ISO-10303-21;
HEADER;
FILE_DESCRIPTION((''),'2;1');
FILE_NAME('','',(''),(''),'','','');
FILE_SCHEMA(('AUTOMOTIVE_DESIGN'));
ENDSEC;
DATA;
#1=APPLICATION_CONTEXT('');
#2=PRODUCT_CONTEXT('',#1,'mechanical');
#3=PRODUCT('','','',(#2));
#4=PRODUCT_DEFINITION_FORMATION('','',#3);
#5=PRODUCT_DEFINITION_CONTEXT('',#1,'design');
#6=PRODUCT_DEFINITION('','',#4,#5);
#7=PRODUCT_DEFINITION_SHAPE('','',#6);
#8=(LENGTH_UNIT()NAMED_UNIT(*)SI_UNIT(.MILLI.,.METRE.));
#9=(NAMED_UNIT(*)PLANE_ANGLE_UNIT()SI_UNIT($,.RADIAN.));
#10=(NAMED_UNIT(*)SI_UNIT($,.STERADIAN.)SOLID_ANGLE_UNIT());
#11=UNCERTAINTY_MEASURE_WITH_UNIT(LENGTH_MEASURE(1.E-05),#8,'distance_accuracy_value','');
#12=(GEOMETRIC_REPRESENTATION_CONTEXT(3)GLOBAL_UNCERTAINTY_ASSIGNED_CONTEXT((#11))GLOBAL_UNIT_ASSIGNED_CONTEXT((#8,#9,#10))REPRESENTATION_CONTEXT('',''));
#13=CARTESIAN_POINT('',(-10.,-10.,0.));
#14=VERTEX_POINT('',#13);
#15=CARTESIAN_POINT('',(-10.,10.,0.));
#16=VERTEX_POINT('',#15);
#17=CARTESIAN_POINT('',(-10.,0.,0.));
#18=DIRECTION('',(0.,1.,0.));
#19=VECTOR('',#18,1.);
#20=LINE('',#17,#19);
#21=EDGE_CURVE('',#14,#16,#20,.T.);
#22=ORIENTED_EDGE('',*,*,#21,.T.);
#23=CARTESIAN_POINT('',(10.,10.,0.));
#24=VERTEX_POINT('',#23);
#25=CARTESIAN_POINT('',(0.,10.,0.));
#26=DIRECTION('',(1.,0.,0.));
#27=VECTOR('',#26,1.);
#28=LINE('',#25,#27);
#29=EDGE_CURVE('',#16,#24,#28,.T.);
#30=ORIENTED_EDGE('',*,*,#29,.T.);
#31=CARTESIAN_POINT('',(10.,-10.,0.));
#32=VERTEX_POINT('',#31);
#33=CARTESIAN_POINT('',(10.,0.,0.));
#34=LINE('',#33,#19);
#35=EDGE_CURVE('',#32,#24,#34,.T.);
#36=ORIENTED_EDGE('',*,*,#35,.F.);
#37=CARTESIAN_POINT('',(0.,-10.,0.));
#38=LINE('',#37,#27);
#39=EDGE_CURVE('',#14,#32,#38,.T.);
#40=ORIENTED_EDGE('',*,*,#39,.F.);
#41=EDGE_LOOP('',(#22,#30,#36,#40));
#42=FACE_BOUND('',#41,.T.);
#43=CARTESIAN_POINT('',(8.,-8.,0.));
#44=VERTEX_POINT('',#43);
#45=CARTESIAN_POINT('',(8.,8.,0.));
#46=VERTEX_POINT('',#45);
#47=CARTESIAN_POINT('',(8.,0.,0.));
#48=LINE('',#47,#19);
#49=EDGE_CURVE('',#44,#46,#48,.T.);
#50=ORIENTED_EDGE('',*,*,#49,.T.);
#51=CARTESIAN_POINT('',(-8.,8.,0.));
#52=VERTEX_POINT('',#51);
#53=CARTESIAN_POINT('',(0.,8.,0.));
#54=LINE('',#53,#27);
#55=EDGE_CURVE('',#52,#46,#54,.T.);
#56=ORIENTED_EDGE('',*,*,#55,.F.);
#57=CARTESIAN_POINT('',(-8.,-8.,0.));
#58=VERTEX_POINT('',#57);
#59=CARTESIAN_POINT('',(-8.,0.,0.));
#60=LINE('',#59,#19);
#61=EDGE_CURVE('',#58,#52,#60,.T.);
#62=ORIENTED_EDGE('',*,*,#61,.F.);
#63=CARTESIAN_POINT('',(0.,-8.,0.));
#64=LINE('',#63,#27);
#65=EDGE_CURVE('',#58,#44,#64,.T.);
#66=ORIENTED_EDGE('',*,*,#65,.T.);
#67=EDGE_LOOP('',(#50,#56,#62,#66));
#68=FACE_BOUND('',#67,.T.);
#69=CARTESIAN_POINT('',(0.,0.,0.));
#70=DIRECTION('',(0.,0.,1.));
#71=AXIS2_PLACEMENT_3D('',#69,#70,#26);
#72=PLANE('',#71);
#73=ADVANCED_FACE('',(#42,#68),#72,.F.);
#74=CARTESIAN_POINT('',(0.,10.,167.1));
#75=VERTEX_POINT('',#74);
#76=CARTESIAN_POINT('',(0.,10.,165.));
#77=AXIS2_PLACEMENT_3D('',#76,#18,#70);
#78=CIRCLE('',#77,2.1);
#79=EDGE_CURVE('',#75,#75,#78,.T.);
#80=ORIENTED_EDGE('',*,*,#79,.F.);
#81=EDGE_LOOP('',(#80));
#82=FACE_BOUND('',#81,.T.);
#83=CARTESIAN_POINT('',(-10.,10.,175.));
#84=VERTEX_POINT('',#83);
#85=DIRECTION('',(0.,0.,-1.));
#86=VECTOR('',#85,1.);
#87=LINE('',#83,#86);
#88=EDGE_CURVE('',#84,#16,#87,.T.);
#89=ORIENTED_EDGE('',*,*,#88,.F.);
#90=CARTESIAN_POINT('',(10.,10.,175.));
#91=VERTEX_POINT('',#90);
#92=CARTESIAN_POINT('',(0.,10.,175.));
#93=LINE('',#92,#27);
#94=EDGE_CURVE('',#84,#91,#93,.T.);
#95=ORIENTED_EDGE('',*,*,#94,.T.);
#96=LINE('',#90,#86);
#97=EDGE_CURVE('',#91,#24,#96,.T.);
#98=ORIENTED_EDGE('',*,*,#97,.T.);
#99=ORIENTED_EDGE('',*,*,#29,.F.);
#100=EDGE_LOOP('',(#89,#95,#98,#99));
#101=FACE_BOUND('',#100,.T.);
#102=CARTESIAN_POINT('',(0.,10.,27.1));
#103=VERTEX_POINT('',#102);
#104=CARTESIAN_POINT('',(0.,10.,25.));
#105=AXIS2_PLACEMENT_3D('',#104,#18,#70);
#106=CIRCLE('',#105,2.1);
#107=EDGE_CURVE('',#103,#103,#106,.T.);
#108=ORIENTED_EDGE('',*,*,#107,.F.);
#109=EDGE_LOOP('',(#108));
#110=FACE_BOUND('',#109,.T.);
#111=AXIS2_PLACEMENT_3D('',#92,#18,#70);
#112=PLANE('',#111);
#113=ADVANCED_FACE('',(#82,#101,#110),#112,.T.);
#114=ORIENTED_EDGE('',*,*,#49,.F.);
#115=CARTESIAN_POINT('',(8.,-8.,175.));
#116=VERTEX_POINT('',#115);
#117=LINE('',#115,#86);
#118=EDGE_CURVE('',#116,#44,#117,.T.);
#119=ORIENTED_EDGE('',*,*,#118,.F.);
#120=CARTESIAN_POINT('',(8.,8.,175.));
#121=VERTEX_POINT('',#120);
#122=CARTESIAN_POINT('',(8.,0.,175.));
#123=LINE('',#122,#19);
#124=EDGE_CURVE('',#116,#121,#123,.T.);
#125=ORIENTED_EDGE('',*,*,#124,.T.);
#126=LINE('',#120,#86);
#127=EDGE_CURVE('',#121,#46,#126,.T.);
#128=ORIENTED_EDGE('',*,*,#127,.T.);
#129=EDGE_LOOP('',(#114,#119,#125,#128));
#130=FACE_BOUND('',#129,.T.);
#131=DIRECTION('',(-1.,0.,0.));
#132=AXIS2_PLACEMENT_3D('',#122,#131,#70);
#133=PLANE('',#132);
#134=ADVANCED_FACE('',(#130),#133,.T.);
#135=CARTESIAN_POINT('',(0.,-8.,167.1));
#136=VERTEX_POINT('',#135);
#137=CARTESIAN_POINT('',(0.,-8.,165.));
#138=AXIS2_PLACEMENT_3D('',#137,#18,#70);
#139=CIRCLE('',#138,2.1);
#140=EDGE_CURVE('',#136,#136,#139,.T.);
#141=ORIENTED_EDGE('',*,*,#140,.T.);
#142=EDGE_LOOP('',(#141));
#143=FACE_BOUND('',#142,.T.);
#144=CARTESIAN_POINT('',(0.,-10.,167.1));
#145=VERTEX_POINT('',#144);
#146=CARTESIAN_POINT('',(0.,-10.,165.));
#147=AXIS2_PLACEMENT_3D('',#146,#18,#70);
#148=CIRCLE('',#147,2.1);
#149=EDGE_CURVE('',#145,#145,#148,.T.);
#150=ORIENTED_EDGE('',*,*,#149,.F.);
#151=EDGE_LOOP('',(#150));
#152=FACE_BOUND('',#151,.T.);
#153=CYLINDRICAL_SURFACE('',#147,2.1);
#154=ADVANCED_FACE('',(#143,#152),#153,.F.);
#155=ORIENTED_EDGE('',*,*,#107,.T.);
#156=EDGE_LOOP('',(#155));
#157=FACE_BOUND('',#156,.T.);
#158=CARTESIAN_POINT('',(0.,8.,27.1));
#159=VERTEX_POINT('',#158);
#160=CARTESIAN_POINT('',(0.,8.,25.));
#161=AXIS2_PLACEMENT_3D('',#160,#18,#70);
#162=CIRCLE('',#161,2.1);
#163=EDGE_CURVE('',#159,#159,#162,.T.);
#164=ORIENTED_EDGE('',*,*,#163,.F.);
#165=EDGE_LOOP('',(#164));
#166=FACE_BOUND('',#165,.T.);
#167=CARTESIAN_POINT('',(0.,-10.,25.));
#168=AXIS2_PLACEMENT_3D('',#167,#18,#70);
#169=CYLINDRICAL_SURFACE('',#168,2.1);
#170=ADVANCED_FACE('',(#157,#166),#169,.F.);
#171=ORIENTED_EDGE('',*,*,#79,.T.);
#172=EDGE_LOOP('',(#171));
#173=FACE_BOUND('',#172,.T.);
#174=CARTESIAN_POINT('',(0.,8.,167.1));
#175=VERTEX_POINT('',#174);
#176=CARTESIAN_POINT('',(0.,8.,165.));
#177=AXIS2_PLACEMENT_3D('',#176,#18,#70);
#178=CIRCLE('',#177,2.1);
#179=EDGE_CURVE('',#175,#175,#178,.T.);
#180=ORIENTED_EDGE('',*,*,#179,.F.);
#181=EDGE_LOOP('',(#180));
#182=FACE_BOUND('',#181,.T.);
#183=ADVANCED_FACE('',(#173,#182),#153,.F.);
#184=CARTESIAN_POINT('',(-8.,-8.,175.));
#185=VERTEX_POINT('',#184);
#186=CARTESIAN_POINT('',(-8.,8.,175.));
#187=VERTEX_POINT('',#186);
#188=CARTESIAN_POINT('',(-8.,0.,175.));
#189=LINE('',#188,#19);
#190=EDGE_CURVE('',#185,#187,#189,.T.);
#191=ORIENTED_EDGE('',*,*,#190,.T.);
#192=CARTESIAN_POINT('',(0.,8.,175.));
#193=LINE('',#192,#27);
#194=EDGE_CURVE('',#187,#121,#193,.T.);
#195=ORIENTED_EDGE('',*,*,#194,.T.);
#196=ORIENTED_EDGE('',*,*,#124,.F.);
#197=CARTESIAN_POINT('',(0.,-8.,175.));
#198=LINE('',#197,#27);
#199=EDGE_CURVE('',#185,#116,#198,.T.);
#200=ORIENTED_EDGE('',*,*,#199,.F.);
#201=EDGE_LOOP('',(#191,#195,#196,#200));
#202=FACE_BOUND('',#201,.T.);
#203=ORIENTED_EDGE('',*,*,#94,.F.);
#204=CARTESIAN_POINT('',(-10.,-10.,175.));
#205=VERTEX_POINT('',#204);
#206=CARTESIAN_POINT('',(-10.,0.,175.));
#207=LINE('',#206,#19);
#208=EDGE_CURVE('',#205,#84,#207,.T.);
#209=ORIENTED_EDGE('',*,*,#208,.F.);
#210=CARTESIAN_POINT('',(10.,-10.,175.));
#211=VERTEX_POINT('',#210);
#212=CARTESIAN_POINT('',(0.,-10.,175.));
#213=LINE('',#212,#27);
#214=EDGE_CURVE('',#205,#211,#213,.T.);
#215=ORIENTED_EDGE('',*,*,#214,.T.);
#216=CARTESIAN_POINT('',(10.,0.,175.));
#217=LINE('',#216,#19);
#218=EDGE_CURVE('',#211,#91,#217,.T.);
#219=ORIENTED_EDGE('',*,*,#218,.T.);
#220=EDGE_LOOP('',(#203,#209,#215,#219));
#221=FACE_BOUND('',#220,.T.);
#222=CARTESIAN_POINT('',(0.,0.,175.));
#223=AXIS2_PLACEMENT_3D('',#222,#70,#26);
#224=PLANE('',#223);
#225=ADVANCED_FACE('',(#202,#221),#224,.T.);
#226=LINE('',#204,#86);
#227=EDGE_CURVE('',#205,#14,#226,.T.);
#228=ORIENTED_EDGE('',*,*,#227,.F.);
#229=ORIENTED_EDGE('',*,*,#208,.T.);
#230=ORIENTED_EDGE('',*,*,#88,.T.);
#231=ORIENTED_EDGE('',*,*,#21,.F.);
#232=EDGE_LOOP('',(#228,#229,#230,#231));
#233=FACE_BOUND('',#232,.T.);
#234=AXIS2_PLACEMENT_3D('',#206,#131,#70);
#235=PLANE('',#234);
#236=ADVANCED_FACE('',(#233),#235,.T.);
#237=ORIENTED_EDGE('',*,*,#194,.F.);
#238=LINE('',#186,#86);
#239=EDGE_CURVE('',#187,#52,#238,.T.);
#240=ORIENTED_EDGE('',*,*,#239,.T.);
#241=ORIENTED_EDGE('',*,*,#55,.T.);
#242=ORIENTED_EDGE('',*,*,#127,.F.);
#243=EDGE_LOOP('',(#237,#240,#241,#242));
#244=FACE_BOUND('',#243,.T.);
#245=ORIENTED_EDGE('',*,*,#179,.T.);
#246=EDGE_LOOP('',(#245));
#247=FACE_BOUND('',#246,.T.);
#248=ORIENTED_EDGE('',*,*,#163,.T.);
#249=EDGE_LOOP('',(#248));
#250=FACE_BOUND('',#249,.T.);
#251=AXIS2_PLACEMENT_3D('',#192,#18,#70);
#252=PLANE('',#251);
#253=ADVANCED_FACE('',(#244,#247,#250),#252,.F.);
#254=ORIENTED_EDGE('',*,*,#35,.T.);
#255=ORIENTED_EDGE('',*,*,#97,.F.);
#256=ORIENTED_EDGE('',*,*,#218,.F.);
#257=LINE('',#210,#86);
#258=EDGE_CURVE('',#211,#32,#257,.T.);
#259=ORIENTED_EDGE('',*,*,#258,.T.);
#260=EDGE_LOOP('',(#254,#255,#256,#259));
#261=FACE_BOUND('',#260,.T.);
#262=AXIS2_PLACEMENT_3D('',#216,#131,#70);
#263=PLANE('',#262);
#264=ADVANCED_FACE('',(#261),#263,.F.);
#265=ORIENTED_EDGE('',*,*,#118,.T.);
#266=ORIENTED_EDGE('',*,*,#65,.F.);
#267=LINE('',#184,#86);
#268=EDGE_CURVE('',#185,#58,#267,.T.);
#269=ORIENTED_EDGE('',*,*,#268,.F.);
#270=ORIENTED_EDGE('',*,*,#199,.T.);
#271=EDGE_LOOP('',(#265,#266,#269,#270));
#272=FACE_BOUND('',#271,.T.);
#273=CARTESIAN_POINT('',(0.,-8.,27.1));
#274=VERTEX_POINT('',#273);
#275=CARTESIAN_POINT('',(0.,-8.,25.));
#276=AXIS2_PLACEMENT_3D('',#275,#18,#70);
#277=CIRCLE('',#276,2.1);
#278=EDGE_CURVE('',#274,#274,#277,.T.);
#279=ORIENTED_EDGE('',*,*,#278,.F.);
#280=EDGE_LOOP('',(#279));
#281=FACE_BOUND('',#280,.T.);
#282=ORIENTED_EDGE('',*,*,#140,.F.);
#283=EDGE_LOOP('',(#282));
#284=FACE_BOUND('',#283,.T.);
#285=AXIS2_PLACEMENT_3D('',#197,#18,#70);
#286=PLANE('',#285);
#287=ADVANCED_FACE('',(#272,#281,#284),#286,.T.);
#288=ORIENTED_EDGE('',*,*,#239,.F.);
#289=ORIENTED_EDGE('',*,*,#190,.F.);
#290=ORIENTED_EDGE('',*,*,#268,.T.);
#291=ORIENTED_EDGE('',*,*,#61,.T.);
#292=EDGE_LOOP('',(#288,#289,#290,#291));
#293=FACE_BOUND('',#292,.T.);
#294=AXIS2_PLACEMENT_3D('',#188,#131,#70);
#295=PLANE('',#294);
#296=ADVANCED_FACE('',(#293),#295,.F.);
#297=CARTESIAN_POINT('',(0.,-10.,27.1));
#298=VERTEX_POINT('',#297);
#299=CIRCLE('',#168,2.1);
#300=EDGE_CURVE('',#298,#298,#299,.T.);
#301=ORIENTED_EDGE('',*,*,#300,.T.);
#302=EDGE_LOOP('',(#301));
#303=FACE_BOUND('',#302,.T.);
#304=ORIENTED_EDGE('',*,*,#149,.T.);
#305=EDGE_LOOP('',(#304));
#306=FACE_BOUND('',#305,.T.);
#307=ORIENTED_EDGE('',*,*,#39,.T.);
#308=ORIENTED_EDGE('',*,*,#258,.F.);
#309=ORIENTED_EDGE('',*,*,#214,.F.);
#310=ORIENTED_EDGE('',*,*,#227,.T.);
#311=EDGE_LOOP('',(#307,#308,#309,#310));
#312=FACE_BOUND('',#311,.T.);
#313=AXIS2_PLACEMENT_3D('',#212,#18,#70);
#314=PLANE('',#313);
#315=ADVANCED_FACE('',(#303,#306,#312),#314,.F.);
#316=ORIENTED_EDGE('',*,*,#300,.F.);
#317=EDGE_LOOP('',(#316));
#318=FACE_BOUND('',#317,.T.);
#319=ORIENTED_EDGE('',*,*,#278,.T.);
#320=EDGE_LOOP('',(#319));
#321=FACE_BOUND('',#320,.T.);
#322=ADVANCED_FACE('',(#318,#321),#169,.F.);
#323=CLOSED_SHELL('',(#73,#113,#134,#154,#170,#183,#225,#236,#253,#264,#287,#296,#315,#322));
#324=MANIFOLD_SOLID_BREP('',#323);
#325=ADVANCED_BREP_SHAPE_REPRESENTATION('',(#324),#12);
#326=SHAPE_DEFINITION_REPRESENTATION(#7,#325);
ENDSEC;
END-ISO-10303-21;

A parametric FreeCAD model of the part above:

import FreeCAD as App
import Part
import Sketcher
from FreeCAD import Vector
Q = App.Units.Quantity


def add_polygon(sketch, points):
    """Adds a closed chain of lines whose ends are joined by coincident constraints."""
    first, n = sketch.GeometryCount, len(points)
    for a, b in zip(points, points[1:] + points[:1]):
        sketch.addGeometry(Part.LineSegment(App.Vector(*a, 0), App.Vector(*b, 0)), False)
    for i in range(n):
        sketch.addConstraint(Sketcher.Constraint("Coincident", first + i, 2, first + (i + 1) % n, 1))

doc = App.newDocument("Part")
body = doc.addObject("PartDesign::Body", "Body")

# Sketch on XY plane
sketch1 = doc.addObject("Sketcher::SketchObject", "Sketch")
body.addObject(sketch1)
sketch1.AttachmentSupport = (doc.XY_Plane, [""])
sketch1.MapMode = "FlatFace"
add_polygon(sketch1, [(-10, 10), (-10, -10), (10, -10), (10, 10)])  # lines 0-3
add_polygon(sketch1, [(8, -8), (-8, -8), (-8, 8), (8, 8)])  # lines 4-7
sketch1.addConstraint(Sketcher.Constraint("Vertical", 0))
sketch1.addConstraint(Sketcher.Constraint("Horizontal", 1))
sketch1.addConstraint(Sketcher.Constraint("Vertical", 2))
sketch1.addConstraint(Sketcher.Constraint("Horizontal", 3))
sketch1.addConstraint(Sketcher.Constraint("Horizontal", 4))
sketch1.addConstraint(Sketcher.Constraint("Vertical", 5))
sketch1.addConstraint(Sketcher.Constraint("Horizontal", 6))
sketch1.addConstraint(Sketcher.Constraint("Vertical", 7))
sketch1.addConstraint(Sketcher.Constraint("Symmetric", 0, 2, 2, 2, -1, 1))
sketch1.addConstraint(Sketcher.Constraint("Symmetric", 4, 2, 6, 2, -1, 1))
sketch1.addConstraint(Sketcher.Constraint("Equal", 3, 0))
sketch1.addConstraint(Sketcher.Constraint("Equal", 6, 5))
sketch1.addConstraint(Sketcher.Constraint("DistanceX", 1, 1, 1, 2, Q("20 mm")))
sketch1.addConstraint(Sketcher.Constraint("DistanceX", 4, 2, 4, 1, Q("16 mm")))
pad1 = doc.addObject("PartDesign::Pad", "Pad")
body.addObject(pad1)
pad1.Profile = sketch1
pad1.Length = 175

# Sketch on XZ plane
sketch2 = doc.addObject("Sketcher::SketchObject", "Sketch001")
body.addObject(sketch2)
sketch2.AttachmentSupport = (doc.XZ_Plane, [""])
sketch2.MapMode = "FlatFace"
sketch2.AttachmentOffset = App.Placement(Vector(0, 0, -10), App.Rotation())
sketch2.addGeometry(Part.Circle(Vector(0, 165, 0), Vector(0, 0, 1), 2.1), False)
sketch2.addGeometry(Part.Circle(Vector(0, 25, 0), Vector(0, 0, 1), 2.1), False)
sketch2.addConstraint(Sketcher.Constraint("Equal", 0, 1))
sketch2.addConstraint(Sketcher.Constraint("PointOnObject", 0, 3, -2))
sketch2.addConstraint(Sketcher.Constraint("PointOnObject", 1, 3, -2))
sketch2.addConstraint(Sketcher.Constraint("Diameter", 0, Q("4.2 mm")))
sketch2.addConstraint(Sketcher.Constraint("DistanceY", -1, 1, 0, 3, Q("165 mm")))
sketch2.addConstraint(Sketcher.Constraint("DistanceY", -1, 1, 1, 3, Q("25 mm")))
pocket1 = doc.addObject("PartDesign::Pocket", "Pocket")
body.addObject(pocket1)
pocket1.Profile = sketch2
pocket1.Type = "ThroughAll"
pocket1.Reversed = True

doc.recompute()
